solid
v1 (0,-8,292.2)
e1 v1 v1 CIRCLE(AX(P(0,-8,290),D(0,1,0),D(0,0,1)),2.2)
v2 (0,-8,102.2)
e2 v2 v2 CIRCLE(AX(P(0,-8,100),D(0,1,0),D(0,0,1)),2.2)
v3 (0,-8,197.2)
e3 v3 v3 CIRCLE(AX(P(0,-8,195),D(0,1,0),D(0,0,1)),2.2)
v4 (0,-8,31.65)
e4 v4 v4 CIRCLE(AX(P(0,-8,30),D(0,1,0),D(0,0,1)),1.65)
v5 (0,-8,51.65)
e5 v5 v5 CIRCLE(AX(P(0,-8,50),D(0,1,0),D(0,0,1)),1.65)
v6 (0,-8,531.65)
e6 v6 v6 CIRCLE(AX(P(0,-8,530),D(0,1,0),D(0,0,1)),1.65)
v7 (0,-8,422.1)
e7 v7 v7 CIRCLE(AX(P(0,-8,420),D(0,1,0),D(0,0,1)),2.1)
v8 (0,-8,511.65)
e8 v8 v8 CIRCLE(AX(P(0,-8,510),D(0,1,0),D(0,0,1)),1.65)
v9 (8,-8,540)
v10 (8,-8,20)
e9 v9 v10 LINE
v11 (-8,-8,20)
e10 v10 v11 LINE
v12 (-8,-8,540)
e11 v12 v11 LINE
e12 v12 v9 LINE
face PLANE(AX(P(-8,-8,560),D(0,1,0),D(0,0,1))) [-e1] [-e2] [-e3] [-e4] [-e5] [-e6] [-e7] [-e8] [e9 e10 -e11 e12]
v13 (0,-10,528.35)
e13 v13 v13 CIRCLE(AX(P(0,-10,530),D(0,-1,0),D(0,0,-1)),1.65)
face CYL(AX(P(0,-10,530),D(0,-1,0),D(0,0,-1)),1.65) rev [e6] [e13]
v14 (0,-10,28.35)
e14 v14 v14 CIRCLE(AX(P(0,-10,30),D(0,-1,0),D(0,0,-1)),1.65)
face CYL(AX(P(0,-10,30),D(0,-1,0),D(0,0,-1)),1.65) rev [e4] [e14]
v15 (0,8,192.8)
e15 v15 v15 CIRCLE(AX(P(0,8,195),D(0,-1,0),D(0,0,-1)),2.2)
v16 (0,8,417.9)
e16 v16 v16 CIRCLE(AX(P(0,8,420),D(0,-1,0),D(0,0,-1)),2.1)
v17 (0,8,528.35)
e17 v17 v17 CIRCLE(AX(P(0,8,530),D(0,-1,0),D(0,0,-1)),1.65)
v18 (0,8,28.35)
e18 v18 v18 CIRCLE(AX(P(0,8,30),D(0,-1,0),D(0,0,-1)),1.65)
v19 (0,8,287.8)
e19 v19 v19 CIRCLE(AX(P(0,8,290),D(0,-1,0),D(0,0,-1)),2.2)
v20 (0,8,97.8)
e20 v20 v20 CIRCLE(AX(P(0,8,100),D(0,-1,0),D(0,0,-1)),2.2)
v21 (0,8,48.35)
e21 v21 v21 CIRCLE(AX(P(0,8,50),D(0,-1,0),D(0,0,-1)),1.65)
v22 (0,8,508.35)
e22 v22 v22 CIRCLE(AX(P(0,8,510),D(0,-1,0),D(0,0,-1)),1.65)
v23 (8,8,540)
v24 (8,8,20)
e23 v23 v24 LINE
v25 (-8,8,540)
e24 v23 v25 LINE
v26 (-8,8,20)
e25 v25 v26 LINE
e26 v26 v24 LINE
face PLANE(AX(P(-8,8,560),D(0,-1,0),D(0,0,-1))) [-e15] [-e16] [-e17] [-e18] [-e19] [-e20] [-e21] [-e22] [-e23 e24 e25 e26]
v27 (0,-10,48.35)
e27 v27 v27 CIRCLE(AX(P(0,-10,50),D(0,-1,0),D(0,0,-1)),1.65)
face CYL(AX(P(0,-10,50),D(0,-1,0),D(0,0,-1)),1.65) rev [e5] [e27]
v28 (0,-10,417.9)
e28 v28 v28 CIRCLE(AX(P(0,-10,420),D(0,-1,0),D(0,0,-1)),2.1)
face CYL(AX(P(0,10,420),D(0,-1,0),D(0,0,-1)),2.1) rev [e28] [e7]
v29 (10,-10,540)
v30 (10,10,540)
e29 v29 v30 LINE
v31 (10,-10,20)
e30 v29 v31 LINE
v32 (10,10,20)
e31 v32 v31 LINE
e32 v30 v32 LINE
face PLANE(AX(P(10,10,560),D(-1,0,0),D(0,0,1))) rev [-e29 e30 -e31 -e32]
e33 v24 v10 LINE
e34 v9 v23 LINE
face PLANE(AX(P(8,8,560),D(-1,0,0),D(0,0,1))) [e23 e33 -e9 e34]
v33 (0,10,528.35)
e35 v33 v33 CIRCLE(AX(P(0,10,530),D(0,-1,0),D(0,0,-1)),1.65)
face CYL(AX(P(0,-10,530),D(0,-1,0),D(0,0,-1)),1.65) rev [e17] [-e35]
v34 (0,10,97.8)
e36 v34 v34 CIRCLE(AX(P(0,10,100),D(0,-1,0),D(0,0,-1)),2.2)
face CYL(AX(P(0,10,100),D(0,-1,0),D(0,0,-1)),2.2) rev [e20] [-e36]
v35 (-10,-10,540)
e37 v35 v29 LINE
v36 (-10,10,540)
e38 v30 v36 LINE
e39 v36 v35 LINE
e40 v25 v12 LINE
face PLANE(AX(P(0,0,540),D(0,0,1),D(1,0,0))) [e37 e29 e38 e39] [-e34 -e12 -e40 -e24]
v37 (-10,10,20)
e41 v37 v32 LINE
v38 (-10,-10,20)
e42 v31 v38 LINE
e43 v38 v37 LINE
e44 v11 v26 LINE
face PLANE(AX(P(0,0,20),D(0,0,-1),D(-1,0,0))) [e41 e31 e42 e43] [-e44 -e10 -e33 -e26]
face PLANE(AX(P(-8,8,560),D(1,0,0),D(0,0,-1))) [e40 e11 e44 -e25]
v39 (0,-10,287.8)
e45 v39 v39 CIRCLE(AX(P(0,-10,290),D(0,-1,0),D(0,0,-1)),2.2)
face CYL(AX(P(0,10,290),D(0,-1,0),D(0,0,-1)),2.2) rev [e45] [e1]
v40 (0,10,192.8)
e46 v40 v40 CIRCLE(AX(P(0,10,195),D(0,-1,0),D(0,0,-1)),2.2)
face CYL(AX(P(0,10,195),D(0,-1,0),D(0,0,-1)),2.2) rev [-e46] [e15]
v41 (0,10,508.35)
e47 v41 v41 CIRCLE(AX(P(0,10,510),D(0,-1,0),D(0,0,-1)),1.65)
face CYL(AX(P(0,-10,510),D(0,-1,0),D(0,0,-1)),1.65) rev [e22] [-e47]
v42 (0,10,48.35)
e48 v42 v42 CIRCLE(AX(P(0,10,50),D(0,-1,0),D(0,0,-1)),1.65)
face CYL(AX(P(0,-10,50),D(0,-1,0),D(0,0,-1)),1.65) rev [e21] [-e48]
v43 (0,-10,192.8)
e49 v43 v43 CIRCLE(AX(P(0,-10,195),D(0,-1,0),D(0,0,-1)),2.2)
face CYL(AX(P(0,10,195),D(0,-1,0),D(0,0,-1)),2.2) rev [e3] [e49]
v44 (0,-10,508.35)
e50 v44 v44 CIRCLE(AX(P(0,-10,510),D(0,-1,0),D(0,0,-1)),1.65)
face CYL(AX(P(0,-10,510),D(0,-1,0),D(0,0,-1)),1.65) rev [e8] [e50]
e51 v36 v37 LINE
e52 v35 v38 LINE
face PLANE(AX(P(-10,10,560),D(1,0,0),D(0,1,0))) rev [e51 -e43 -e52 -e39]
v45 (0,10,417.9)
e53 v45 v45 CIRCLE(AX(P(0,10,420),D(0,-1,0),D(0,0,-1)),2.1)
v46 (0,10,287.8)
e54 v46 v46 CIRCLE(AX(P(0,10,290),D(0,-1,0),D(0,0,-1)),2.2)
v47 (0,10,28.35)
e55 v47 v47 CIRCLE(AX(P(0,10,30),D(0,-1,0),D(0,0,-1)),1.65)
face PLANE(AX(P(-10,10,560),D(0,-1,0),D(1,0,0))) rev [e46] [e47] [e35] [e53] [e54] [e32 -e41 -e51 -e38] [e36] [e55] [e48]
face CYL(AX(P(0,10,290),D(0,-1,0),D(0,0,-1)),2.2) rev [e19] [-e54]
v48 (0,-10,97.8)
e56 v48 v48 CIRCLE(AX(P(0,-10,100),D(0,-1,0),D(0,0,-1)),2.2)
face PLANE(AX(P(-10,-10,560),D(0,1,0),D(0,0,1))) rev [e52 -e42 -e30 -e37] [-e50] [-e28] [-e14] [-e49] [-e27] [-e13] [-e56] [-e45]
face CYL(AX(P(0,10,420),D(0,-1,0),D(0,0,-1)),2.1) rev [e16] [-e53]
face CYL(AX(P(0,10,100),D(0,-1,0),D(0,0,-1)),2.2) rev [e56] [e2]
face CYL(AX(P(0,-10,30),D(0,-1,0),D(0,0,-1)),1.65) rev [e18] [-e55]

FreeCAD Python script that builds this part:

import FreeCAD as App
import Part
import Sketcher

V = App.Vector


def add_polygon(sketch, points):
    """Adds a closed chain of lines whose ends are joined by coincident constraints."""
    first, n = sketch.GeometryCount, len(points)
    for a, b in zip(points, points[1:] + points[:1]):
        sketch.addGeometry(Part.LineSegment(App.Vector(*a, 0), App.Vector(*b, 0)), False)
    for i in range(n):
        sketch.addConstraint(Sketcher.Constraint("Coincident", first + i, 2, first + (i + 1) % n, 1))

doc = App.newDocument("Part")
params = doc.addObject("Spreadsheet::Sheet", "Params")
for row, (alias, value) in enumerate([
    ("sketch1_width", "20 mm"),
    ("sketch1_width2", "16 mm"),
    ("pad1_length", "560 mm"),
    ("sketch2_diameter", "4.4 mm"),
    ("pocket1_length", "560 mm"),
    ("sketch3_width", "20 mm"),
    ("sketch3_width2", "16 mm"),
    ("pad2_length", "20 mm"),
    ("sketch4_width", "20 mm"),
    ("sketch4_width2", "16 mm"),
    ("pad3_length", "20 mm"),
    ("sketch5_diameter", "4.4 mm"),
    ("pocket2_length", "20 mm"),
    ("sketch6_diameter", "4.4 mm"),
    ("pocket3_length", "20 mm"),
    ("pocket4_length", "40 mm"),
    ("pocket5_length", "40 mm"),
    ("sketch9_diameter", "2 mm"),
    ("pocket6_length", "20 mm"),
    ("sketch10_diameter", "2 mm"),
    ("pocket7_length", "20 mm"),
    ("sketch11_diameter", "4.4 mm"),
    ("sketch12_diameter", "4.2 mm"),
    ("sketch13_diameter", "3.3 mm"),
    ("hole_diameter", "3.3 mm"),
    ("sketch14_diameter", "3.3 mm"),
    ("hole2_diameter", "3.3 mm"),
], start=1):
    params.set(f"A{row}", alias)
    params.set(f"B{row}", "=" + value)
    params.setAlias(f"B{row}", alias)

body = doc.addObject("PartDesign::Body", "Body")

# Sketch on XY plane
sketch1 = body.newObject("Sketcher::SketchObject", "Sketch")
sketch1.AttachmentSupport = (doc.getObject("XY_Plane"), [""])
sketch1.MapMode = "FlatFace"
add_polygon(sketch1, [(-10, 10), (-10, -10), (10, -10), (10, 10)])  # lines 0-3
add_polygon(sketch1, [(8, -8), (-8, -8), (-8, 8), (8, 8)])  # lines 4-7
sketch1.addConstraint([
    Sketcher.Constraint("Vertical", 0),
    Sketcher.Constraint("Horizontal", 1),
    Sketcher.Constraint("Vertical", 2),
    Sketcher.Constraint("Horizontal", 3),
    Sketcher.Constraint("Horizontal", 4),
    Sketcher.Constraint("Vertical", 5),
    Sketcher.Constraint("Horizontal", 6),
    Sketcher.Constraint("Vertical", 7),
    Sketcher.Constraint("Symmetric", 0, 2, 2, 2, -1, 1),
    Sketcher.Constraint("Symmetric", 4, 2, 6, 2, -1, 1),
    Sketcher.Constraint("Equal", 3, 0),
    Sketcher.Constraint("Equal", 6, 5),
    Sketcher.Constraint("DistanceX", 1, 1, 1, 2, 20.0),
    Sketcher.Constraint("DistanceX", 4, 2, 4, 1, 16.0),
])
sketch1.setExpression("Constraints[20]", "Params.sketch1_width")
sketch1.setExpression("Constraints[21]", "Params.sketch1_width2")
pad1 = body.newObject("PartDesign::Pad", "Pad")
pad1.Profile = sketch1
pad1.setExpression("Length", "Params.pad1_length")

# Sketch on XZ plane
sketch2 = body.newObject("Sketcher::SketchObject", "Sketch001")
sketch2.AttachmentSupport = (doc.getObject("XZ_Plane"), [""])
sketch2.MapMode = "FlatFace"
sketch2.AttachmentOffset = App.Placement(V(0, 0, -10), App.Rotation())
sketch2.addGeometry([
    Part.Circle(V(0, 550, 0), V(0, 0, 1), 2.2),
    Part.Circle(V(0, 10, 0), V(0, 0, 1), 2.2),
], False)
sketch2.addConstraint([
    Sketcher.Constraint("Equal", 0, 1),
    Sketcher.Constraint("PointOnObject", 0, 3, -2),
    Sketcher.Constraint("PointOnObject", 1, 3, -2),
    Sketcher.Constraint("Diameter", 0, 4.4),
    Sketcher.Constraint("DistanceY", -1, 1, 0, 3, 550.0),
    Sketcher.Constraint("DistanceY", -1, 1, 1, 3, 10.0),
])
sketch2.setExpression("Constraints[3]", "Params.sketch2_diameter")
pocket1 = body.newObject("PartDesign::Pocket", "Pocket")
pocket1.Profile = sketch2
pocket1.setExpression("Length", "Params.pocket1_length")
pocket1.Reversed = True

# Sketch on XY plane
sketch3 = body.newObject("Sketcher::SketchObject", "Sketch002")
sketch3.AttachmentSupport = (doc.getObject("XY_Plane"), [""])
sketch3.MapMode = "FlatFace"
add_polygon(sketch3, [(10, 10), (10, -10), (-10, -10), (-10, 10)])  # lines 0-3
add_polygon(sketch3, [(-8, -8), (8, -8), (8, 8), (-8, 8)])  # lines 4-7
sketch3.addConstraint([
    Sketcher.Constraint("Vertical", 0),
    Sketcher.Constraint("Horizontal", 1),
    Sketcher.Constraint("Vertical", 2),
    Sketcher.Constraint("Horizontal", 3),
    Sketcher.Constraint("Horizontal", 4),
    Sketcher.Constraint("Vertical", 5),
    Sketcher.Constraint("Horizontal", 6),
    Sketcher.Constraint("Vertical", 7),
    Sketcher.Constraint("Symmetric", 0, 2, 2, 2, -1, 1),
    Sketcher.Constraint("Symmetric", 4, 2, 6, 2, -1, 1),
    Sketcher.Constraint("Equal", 3, 0),
    Sketcher.Constraint("Equal", 6, 5),
    Sketcher.Constraint("DistanceX", 1, 2, 1, 1, 20.0),
    Sketcher.Constraint("DistanceX", 4, 1, 4, 2, 16.0),
])
sketch3.setExpression("Constraints[20]", "Params.sketch3_width")
sketch3.setExpression("Constraints[21]", "Params.sketch3_width2")
pad2 = body.newObject("PartDesign::Pad", "Pad001")
pad2.Profile = sketch3
pad2.setExpression("Length", "Params.pad2_length")
pad2.Reversed = True

# Sketch on XY plane
sketch4 = body.newObject("Sketcher::SketchObject", "Sketch003")
sketch4.AttachmentSupport = (doc.getObject("XY_Plane"), [""])
sketch4.MapMode = "FlatFace"
sketch4.AttachmentOffset = App.Placement(V(0, 0, 560), App.Rotation())
add_polygon(sketch4, [(-10, 10), (-10, -10), (10, -10), (10, 10)])  # lines 0-3
add_polygon(sketch4, [(8, -8), (-8, -8), (-8, 8), (8, 8)])  # lines 4-7
sketch4.addConstraint([
    Sketcher.Constraint("Vertical", 0),
    Sketcher.Constraint("Horizontal", 1),
    Sketcher.Constraint("Vertical", 2),
    Sketcher.Constraint("Horizontal", 3),
    Sketcher.Constraint("Horizontal", 4),
    Sketcher.Constraint("Vertical", 5),
    Sketcher.Constraint("Horizontal", 6),
    Sketcher.Constraint("Vertical", 7),
    Sketcher.Constraint("Symmetric", 0, 2, 2, 2, -1, 1),
    Sketcher.Constraint("Symmetric", 4, 2, 6, 2, -1, 1),
    Sketcher.Constraint("Equal", 3, 0),
    Sketcher.Constraint("Equal", 6, 5),
    Sketcher.Constraint("DistanceX", 1, 1, 1, 2, 20.0),
    Sketcher.Constraint("DistanceX", 4, 2, 4, 1, 16.0),
])
sketch4.setExpression("Constraints[20]", "Params.sketch4_width")
sketch4.setExpression("Constraints[21]", "Params.sketch4_width2")
pad3 = body.newObject("PartDesign::Pad", "Pad002")
pad3.Profile = sketch4
pad3.setExpression("Length", "Params.pad3_length")

# Sketch on YZ plane
sketch5 = body.newObject("Sketcher::SketchObject", "Sketch004")
sketch5.AttachmentSupport = (doc.getObject("YZ_Plane"), [""])
sketch5.MapMode = "FlatFace"
sketch5.AttachmentOffset = App.Placement(V(0, 0, 10), App.Rotation())
sketch5.addGeometry(Part.Circle(V(0, 570, 0), V(0, 0, 1), 2.2), False)
sketch5.addConstraint([
    Sketcher.Constraint("PointOnObject", 0, 3, -2),
    Sketcher.Constraint("Diameter", 0, 4.4),
    Sketcher.Constraint("DistanceY", -1, 1, 0, 3, 570.0),
])
sketch5.setExpression("Constraints[1]", "Params.sketch5_diameter")
pocket2 = body.newObject("PartDesign::Pocket", "Pocket001")
pocket2.Profile = sketch5
pocket2.setExpression("Length", "Params.pocket2_length")

# Sketch on YZ plane
sketch6 = body.newObject("Sketcher::SketchObject", "Sketch005")
sketch6.AttachmentSupport = (doc.getObject("YZ_Plane"), [""])
sketch6.MapMode = "FlatFace"
sketch6.AttachmentOffset = App.Placement(V(0, 0, 10), App.Rotation())
sketch6.addGeometry(Part.Circle(V(0, -10, 0), V(0, 0, 1), 2.2), False)
sketch6.addConstraint([
    Sketcher.Constraint("PointOnObject", 0, 3, -2),
    Sketcher.Constraint("Diameter", 0, 4.4),
    Sketcher.Constraint("DistanceY", 0, 3, -1, 1, 10.0),
])
sketch6.setExpression("Constraints[1]", "Params.sketch6_diameter")
pocket3 = body.newObject("PartDesign::Pocket", "Pocket002")
pocket3.Profile = sketch6
pocket3.setExpression("Length", "Params.pocket3_length")

# Sketch on XY plane
sketch7 = body.newObject("Sketcher::SketchObject", "Sketch006")
sketch7.AttachmentSupport = (doc.getObject("XY_Plane"), [""])
sketch7.MapMode = "FlatFace"
sketch7.AttachmentOffset = App.Placement(V(0, 0, -20), App.Rotation())
add_polygon(sketch7, [(26, 15), (26, -15), (-26, -15), (-26, 15)])  # lines 0-3
sketch7.addConstraint([
    Sketcher.Constraint("Vertical", 0),
    Sketcher.Constraint("Horizontal", 1),
    Sketcher.Constraint("Vertical", 2),
    Sketcher.Constraint("Horizontal", 3),
    Sketcher.Constraint("Symmetric", 0, 2, 2, 2, -1, 1),
    Sketcher.Constraint("DistanceX", 1, 2, 1, 1, 51.422459),
    Sketcher.Constraint("DistanceY", 0, 2, 0, 1, 30.440796),
])
pocket4 = body.newObject("PartDesign::Pocket", "Pocket003")
pocket4.Profile = sketch7
pocket4.setExpression("Length", "Params.pocket4_length")
pocket4.Reversed = True

# Sketch on XY plane
sketch8 = body.newObject("Sketcher::SketchObject", "Sketch007")
sketch8.AttachmentSupport = (doc.getObject("XY_Plane"), [""])
sketch8.MapMode = "FlatFace"
sketch8.AttachmentOffset = App.Placement(V(0, 0, 580), App.Rotation())
add_polygon(sketch8, [(-20, 26), (-20, -26), (20, -26), (20, 26)])  # lines 0-3
sketch8.addConstraint([
    Sketcher.Constraint("Vertical", 0),
    Sketcher.Constraint("Horizontal", 1),
    Sketcher.Constraint("Vertical", 2),
    Sketcher.Constraint("Horizontal", 3),
    Sketcher.Constraint("Symmetric", 0, 2, 2, 2, -1, 1),
    Sketcher.Constraint("DistanceX", 1, 1, 1, 2, 39.362639),
    Sketcher.Constraint("DistanceY", 0, 2, 0, 1, 52.747334),
])
pocket5 = body.newObject("PartDesign::Pocket", "Pocket004")
pocket5.Profile = sketch8
pocket5.setExpression("Length", "Params.pocket5_length")

# Sketch on XZ plane
sketch9 = body.newObject("Sketcher::SketchObject", "Sketch008")
sketch9.AttachmentSupport = (doc.getObject("XZ_Plane"), [""])
sketch9.MapMode = "FlatFace"
sketch9.AttachmentOffset = App.Placement(V(0, 0, 10), App.Rotation())
sketch9.addGeometry([
    Part.Circle(V(0, 530, 0), V(0, 0, 1), 1),
    Part.Circle(V(0, 510, 0), V(0, 0, 1), 1),
], False)
sketch9.addConstraint([
    Sketcher.Constraint("Equal", 0, 1),
    Sketcher.Constraint("PointOnObject", 0, 3, -2),
    Sketcher.Constraint("PointOnObject", 1, 3, -2),
    Sketcher.Constraint("Diameter", 0, 2.0),
    Sketcher.Constraint("DistanceY", -1, 1, 0, 3, 530.0),
    Sketcher.Constraint("DistanceY", -1, 1, 1, 3, 510.0),
])
sketch9.setExpression("Constraints[3]", "Params.sketch9_diameter")
pocket6 = body.newObject("PartDesign::Pocket", "Pocket005")
pocket6.Profile = sketch9
pocket6.setExpression("Length", "Params.pocket6_length")

# Sketch on XZ plane
sketch10 = body.newObject("Sketcher::SketchObject", "Sketch009")
sketch10.AttachmentSupport = (doc.getObject("XZ_Plane"), [""])
sketch10.MapMode = "FlatFace"
sketch10.AttachmentOffset = App.Placement(V(0, 0, 10), App.Rotation())
sketch10.addGeometry([
    Part.Circle(V(0, 30, 0), V(0, 0, 1), 1),
    Part.Circle(V(0, 50, 0), V(0, 0, 1), 1),
], False)
sketch10.addConstraint([
    Sketcher.Constraint("Equal", 0, 1),
    Sketcher.Constraint("PointOnObject", 0, 3, -2),
    Sketcher.Constraint("PointOnObject", 1, 3, -2),
    Sketcher.Constraint("Diameter", 0, 2.0),
    Sketcher.Constraint("DistanceY", -1, 1, 0, 3, 30.0),
    Sketcher.Constraint("DistanceY", -1, 1, 1, 3, 50.0),
])
sketch10.setExpression("Constraints[3]", "Params.sketch10_diameter")
pocket7 = body.newObject("PartDesign::Pocket", "Pocket006")
pocket7.Profile = sketch10
pocket7.setExpression("Length", "Params.pocket7_length")

# Sketch on XZ plane
sketch11 = body.newObject("Sketcher::SketchObject", "Sketch010")
sketch11.AttachmentSupport = (doc.getObject("XZ_Plane"), [""])
sketch11.MapMode = "FlatFace"
sketch11.AttachmentOffset = App.Placement(V(0, 0, 10), App.Rotation())
sketch11.addGeometry([
    Part.Circle(V(0, 100, 0), V(0, 0, 1), 2.2),
    Part.Circle(V(0, 195, 0), V(0, 0, 1), 2.2),
    Part.Circle(V(0, 290, 0), V(0, 0, 1), 2.2),
], False)
sketch11.addConstraint([
    Sketcher.Constraint("Equal", 0, 1),
    Sketcher.Constraint("Equal", 1, 2),
    Sketcher.Constraint("PointOnObject", 0, 3, -2),
    Sketcher.Constraint("PointOnObject", 1, 3, -2),
    Sketcher.Constraint("PointOnObject", 2, 3, -2),
    Sketcher.Constraint("Diameter", 0, 4.4),
    Sketcher.Constraint("DistanceY", -1, 1, 0, 3, 100.0),
    Sketcher.Constraint("DistanceY", -1, 1, 1, 3, 195.0),
    Sketcher.Constraint("DistanceY", -1, 1, 2, 3, 290.0),
])
sketch11.setExpression("Constraints[5]", "Params.sketch11_diameter")
pocket8 = body.newObject("PartDesign::Pocket", "Pocket007")
pocket8.Profile = sketch11
pocket8.Type = "ThroughAll"

# Sketch on XZ plane
sketch12 = body.newObject("Sketcher::SketchObject", "Sketch011")
sketch12.AttachmentSupport = (doc.getObject("XZ_Plane"), [""])
sketch12.MapMode = "FlatFace"
sketch12.AttachmentOffset = App.Placement(V(0, 0, 10), App.Rotation())
sketch12.addGeometry(Part.Circle(V(0, 420, 0), V(0, 0, 1), 2.1), False)
sketch12.addConstraint([
    Sketcher.Constraint("PointOnObject", 0, 3, -2),
    Sketcher.Constraint("Diameter", 0, 4.2),
    Sketcher.Constraint("DistanceY", -1, 1, 0, 3, 420.0),
])
sketch12.setExpression("Constraints[1]", "Params.sketch12_diameter")
pocket9 = body.newObject("PartDesign::Pocket", "Pocket008")
pocket9.Profile = sketch12
pocket9.Type = "ThroughAll"

# Sketch on XZ plane
sketch13 = body.newObject("Sketcher::SketchObject", "Sketch012")
sketch13.AttachmentSupport = (doc.getObject("XZ_Plane"), [""])
sketch13.MapMode = "FlatFace"
sketch13.AttachmentOffset = App.Placement(V(0, 0, 10), App.Rotation())
sketch13.addGeometry([
    Part.Circle(V(0, 30, 0), V(0, 0, 1), 1.6),
    Part.Circle(V(0, 50, 0), V(0, 0, 1), 1.6),
], False)
sketch13.addConstraint([
    Sketcher.Constraint("Equal", 0, 1),
    Sketcher.Constraint("PointOnObject", 0, 3, -2),
    Sketcher.Constraint("PointOnObject", 1, 3, -2),
    Sketcher.Constraint("Diameter", 0, 3.3),
    Sketcher.Constraint("DistanceY", -1, 1, 0, 3, 30.0),
    Sketcher.Constraint("DistanceY", -1, 1, 1, 3, 50.0),
])
sketch13.setExpression("Constraints[3]", "Params.sketch13_diameter")
doc.recompute()
hole = body.newObject("PartDesign::Hole", "Hole")
hole.Profile = sketch13
hole.ThreadType = "None"
hole.setExpression("Diameter", "Params.hole_diameter")
hole.DepthType = "ThroughAll"

# Sketch on XZ plane
sketch14 = body.newObject("Sketcher::SketchObject", "Sketch013")
sketch14.AttachmentSupport = (doc.getObject("XZ_Plane"), [""])
sketch14.MapMode = "FlatFace"
sketch14.AttachmentOffset = App.Placement(V(0, 0, 10), App.Rotation())
sketch14.addGeometry([
    Part.Circle(V(0, 530, 0), V(0, 0, 1), 1.6),
    Part.Circle(V(0, 510, 0), V(0, 0, 1), 1.6),
], False)
sketch14.addConstraint([
    Sketcher.Constraint("Equal", 0, 1),
    Sketcher.Constraint("PointOnObject", 0, 3, -2),
    Sketcher.Constraint("PointOnObject", 1, 3, -2),
    Sketcher.Constraint("Diameter", 0, 3.3),
    Sketcher.Constraint("DistanceY", -1, 1, 0, 3, 530.0),
    Sketcher.Constraint("DistanceY", -1, 1, 1, 3, 510.0),
])
sketch14.setExpression("Constraints[3]", "Params.sketch14_diameter")
doc.recompute()
hole2 = body.newObject("PartDesign::Hole", "Hole001")
hole2.Profile = sketch14
hole2.ThreadType = "None"
hole2.setExpression("Diameter", "Params.hole2_diameter")
hole2.DepthType = "ThroughAll"

doc.recompute()
